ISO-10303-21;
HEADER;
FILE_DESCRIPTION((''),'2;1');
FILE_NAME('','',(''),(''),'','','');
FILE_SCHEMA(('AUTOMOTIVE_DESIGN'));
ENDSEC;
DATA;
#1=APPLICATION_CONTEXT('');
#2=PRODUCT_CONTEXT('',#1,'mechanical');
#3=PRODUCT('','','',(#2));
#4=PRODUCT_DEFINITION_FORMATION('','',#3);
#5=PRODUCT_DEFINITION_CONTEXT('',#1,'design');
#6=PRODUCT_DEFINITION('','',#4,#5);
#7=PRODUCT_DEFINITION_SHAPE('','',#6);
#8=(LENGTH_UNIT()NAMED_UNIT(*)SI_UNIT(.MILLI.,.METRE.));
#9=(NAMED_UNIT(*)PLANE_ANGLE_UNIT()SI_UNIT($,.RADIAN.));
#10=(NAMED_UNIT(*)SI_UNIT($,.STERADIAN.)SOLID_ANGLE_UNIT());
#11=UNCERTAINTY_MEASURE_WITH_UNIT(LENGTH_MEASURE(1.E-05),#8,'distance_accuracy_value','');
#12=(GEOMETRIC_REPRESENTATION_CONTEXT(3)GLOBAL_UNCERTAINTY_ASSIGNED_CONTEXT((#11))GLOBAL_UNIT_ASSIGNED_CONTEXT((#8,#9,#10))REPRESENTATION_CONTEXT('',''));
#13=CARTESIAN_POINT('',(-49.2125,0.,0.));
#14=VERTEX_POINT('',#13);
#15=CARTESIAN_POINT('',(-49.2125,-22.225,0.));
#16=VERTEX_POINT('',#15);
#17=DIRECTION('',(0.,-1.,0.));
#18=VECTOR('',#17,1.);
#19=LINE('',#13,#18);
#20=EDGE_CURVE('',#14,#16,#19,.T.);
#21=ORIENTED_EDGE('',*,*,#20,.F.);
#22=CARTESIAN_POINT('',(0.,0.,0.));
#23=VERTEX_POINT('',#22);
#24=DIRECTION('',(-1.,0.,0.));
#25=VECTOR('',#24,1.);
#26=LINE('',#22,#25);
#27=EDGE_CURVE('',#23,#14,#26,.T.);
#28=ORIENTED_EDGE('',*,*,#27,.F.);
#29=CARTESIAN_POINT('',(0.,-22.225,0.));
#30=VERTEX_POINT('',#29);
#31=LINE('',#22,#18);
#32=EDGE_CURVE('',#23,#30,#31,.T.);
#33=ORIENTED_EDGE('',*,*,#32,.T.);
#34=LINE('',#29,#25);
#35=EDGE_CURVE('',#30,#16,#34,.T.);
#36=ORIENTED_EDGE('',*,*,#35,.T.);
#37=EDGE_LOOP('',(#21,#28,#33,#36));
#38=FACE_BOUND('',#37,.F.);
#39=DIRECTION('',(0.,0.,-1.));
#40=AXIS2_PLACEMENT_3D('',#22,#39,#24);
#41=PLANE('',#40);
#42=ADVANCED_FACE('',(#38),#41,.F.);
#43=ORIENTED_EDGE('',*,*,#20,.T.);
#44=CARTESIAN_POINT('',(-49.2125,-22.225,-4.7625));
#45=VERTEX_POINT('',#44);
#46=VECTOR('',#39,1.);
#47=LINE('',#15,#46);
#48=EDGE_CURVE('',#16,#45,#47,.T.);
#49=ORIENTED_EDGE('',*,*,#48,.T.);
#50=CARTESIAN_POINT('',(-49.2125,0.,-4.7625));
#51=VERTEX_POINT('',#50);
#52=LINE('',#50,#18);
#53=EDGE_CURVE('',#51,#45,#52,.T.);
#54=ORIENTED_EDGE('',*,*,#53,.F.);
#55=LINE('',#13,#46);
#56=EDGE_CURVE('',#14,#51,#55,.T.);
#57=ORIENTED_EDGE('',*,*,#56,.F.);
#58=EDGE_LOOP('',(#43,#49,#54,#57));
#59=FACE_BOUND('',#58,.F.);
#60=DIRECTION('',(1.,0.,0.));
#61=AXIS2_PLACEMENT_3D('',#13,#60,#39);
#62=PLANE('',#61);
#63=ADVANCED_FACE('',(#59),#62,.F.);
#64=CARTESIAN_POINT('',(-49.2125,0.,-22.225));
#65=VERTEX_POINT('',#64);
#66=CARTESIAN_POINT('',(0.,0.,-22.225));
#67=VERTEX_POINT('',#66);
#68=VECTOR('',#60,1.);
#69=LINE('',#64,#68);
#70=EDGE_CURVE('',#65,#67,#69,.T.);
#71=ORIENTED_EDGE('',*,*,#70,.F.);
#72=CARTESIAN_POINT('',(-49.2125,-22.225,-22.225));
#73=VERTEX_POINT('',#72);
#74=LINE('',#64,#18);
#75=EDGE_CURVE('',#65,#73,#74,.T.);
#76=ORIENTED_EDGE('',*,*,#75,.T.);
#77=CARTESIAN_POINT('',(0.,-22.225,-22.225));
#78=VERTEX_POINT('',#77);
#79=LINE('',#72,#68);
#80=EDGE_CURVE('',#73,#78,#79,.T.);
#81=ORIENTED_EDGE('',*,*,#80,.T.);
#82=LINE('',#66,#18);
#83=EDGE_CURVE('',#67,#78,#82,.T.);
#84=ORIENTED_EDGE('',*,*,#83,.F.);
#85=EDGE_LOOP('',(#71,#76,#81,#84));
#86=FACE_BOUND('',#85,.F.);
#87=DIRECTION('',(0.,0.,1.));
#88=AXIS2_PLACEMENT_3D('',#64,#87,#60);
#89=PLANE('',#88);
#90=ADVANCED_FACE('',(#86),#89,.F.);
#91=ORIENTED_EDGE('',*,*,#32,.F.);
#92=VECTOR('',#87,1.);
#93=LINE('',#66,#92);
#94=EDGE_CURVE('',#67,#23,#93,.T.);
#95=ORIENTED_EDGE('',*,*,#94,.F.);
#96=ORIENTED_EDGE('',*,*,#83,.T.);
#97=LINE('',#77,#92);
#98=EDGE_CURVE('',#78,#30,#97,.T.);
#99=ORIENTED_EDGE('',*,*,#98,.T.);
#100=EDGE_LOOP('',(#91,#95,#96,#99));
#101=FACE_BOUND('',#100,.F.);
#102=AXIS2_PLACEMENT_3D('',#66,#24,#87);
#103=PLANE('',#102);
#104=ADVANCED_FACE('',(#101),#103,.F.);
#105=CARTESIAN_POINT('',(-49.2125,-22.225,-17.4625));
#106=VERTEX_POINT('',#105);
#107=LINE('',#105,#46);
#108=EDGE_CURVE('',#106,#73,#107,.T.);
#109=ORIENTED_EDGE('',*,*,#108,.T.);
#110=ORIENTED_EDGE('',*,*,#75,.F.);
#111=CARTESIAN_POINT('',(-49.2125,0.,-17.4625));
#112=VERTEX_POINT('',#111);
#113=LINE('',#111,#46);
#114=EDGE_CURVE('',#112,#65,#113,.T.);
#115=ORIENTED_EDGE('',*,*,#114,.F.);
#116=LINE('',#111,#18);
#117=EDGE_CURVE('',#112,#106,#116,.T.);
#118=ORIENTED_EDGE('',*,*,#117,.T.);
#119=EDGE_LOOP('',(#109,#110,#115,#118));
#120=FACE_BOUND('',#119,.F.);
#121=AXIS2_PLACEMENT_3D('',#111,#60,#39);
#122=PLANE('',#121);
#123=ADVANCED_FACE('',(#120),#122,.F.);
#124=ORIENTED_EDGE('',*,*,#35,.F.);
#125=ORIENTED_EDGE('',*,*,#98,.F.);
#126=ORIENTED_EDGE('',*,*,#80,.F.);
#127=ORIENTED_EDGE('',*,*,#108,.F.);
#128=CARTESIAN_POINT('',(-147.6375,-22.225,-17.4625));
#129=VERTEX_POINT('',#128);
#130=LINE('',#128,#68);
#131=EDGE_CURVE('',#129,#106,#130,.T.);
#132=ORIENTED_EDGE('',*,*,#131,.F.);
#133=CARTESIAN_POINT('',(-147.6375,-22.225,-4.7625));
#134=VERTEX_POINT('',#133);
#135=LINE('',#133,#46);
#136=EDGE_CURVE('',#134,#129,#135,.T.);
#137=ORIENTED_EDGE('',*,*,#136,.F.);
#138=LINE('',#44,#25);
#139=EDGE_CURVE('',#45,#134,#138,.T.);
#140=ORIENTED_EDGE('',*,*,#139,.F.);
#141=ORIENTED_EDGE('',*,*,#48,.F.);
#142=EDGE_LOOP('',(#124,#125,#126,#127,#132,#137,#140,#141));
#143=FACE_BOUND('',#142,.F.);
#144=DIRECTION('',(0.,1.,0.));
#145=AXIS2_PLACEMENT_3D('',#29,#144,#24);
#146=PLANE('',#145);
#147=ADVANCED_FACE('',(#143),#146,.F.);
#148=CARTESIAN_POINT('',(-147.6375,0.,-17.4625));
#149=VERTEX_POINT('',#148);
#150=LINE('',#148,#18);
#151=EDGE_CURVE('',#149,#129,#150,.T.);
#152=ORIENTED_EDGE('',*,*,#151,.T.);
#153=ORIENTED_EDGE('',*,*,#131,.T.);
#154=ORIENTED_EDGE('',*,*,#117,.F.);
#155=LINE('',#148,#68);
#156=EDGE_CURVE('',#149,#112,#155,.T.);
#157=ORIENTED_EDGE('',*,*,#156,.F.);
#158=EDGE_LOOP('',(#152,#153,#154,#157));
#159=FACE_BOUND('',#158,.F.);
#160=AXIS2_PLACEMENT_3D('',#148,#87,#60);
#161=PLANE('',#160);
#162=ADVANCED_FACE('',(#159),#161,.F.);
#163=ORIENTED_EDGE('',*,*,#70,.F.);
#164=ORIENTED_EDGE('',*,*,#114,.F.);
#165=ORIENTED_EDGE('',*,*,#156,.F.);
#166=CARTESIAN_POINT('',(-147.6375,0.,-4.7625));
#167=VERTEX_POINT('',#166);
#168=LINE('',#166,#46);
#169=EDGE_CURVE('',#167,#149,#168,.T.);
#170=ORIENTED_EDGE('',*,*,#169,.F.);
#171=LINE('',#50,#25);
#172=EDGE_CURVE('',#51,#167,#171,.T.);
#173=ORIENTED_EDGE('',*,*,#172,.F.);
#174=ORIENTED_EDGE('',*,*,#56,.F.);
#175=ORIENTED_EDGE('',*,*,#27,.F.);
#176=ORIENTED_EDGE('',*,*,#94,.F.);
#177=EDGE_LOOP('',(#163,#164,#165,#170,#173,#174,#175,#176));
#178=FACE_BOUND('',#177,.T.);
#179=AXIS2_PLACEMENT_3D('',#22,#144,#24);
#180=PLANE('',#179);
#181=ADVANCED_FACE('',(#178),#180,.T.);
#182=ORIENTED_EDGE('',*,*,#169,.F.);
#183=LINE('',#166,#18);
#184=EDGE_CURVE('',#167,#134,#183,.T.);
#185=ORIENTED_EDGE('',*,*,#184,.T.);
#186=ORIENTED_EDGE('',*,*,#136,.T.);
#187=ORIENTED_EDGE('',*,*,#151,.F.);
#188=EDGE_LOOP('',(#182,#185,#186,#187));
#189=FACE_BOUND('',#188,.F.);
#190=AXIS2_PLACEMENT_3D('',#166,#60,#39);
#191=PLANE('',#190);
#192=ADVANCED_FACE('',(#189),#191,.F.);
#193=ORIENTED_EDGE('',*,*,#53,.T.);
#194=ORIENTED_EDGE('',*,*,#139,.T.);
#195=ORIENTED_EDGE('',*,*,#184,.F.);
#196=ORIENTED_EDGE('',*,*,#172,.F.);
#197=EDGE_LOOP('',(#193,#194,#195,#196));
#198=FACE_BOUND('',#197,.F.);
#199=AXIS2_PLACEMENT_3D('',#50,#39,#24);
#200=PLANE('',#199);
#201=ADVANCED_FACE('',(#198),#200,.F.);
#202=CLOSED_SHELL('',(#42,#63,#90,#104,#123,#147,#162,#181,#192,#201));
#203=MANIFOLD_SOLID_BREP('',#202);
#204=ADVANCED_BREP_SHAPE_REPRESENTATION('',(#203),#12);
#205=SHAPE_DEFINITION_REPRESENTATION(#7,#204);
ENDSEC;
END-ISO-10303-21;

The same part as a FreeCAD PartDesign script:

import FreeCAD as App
import Part
import Sketcher
from FreeCAD import Vector
Q = App.Units.Quantity

doc = App.newDocument("Part")
body = doc.addObject("PartDesign::Body", "Body")

sketch1 = body.newObject("Sketcher::SketchObject", "Sketch")
sketch1.AttachmentSupport = (doc.getObject("XZ_Plane"), [""])
sketch1.MapMode = "FlatFace"
sketch1.addGeometry([
    Part.LineSegment(Vector(-49.2, 0, 0), Vector(0, 0, 0)),
    Part.LineSegment(Vector(0, 0, 0), Vector(0, -22.2, 0)),
    Part.LineSegment(Vector(0, -22.2, 0), Vector(-49.2, -22.2, 0)),
    Part.LineSegment(Vector(-49.2, -22.2, 0), Vector(-49.2, -17.5, 0)),
    Part.LineSegment(Vector(-49.2, -17.5, 0), Vector(-147.6, -17.5, 0)),
    Part.LineSegment(Vector(-147.6, -17.5, 0), Vector(-147.6, -4.8, 0)),
    Part.LineSegment(Vector(-147.6, -4.8, 0), Vector(-49.2, -4.8, 0)),
    Part.LineSegment(Vector(-49.2, -4.8, 0), Vector(-49.2, 0, 0)),
], False)
sketch1.addConstraint([
    Sketcher.Constraint("Coincident", 0, 2, 1, 1),
    Sketcher.Constraint("Coincident", 1, 2, 2, 1),
    Sketcher.Constraint("Coincident", 2, 2, 3, 1),
    Sketcher.Constraint("Coincident", 3, 2, 4, 1),
    Sketcher.Constraint("Coincident", 4, 2, 5, 1),
    Sketcher.Constraint("Coincident", 5, 2, 6, 1),
    Sketcher.Constraint("Coincident", 6, 2, 7, 1),
    Sketcher.Constraint("Coincident", 7, 2, 0, 1),
    Sketcher.Constraint("Horizontal", 0),
    Sketcher.Constraint("Vertical", 1),
    Sketcher.Constraint("Horizontal", 2),
    Sketcher.Constraint("Vertical", 3),
    Sketcher.Constraint("Horizontal", 4),
    Sketcher.Constraint("Vertical", 5),
    Sketcher.Constraint("Horizontal", 6),
    Sketcher.Constraint("Vertical", 7),
    Sketcher.Constraint("Coincident", 0, 2, -1, 1),
    Sketcher.Constraint("Vertical", 3, 2, 6, 2),
    Sketcher.Constraint("Equal", 3, 7),
    Sketcher.Constraint("DistanceX", 4, 2, 4, 1, Q("3.875 in")),
    Sketcher.Constraint("DistanceY", 1, 2, 1, 1, Q("0.875 in")),
    Sketcher.Constraint("DistanceY", 5, 1, 5, 2, Q("0.5 in")),
    Sketcher.Constraint("DistanceX", 4, 2, -1, 1, Q("5.8125 in")),
])
pad1 = body.newObject("PartDesign::Pad", "Pad")
pad1.Profile = sketch1
pad1.Length = Q("0.875 in")

doc.recompute()
